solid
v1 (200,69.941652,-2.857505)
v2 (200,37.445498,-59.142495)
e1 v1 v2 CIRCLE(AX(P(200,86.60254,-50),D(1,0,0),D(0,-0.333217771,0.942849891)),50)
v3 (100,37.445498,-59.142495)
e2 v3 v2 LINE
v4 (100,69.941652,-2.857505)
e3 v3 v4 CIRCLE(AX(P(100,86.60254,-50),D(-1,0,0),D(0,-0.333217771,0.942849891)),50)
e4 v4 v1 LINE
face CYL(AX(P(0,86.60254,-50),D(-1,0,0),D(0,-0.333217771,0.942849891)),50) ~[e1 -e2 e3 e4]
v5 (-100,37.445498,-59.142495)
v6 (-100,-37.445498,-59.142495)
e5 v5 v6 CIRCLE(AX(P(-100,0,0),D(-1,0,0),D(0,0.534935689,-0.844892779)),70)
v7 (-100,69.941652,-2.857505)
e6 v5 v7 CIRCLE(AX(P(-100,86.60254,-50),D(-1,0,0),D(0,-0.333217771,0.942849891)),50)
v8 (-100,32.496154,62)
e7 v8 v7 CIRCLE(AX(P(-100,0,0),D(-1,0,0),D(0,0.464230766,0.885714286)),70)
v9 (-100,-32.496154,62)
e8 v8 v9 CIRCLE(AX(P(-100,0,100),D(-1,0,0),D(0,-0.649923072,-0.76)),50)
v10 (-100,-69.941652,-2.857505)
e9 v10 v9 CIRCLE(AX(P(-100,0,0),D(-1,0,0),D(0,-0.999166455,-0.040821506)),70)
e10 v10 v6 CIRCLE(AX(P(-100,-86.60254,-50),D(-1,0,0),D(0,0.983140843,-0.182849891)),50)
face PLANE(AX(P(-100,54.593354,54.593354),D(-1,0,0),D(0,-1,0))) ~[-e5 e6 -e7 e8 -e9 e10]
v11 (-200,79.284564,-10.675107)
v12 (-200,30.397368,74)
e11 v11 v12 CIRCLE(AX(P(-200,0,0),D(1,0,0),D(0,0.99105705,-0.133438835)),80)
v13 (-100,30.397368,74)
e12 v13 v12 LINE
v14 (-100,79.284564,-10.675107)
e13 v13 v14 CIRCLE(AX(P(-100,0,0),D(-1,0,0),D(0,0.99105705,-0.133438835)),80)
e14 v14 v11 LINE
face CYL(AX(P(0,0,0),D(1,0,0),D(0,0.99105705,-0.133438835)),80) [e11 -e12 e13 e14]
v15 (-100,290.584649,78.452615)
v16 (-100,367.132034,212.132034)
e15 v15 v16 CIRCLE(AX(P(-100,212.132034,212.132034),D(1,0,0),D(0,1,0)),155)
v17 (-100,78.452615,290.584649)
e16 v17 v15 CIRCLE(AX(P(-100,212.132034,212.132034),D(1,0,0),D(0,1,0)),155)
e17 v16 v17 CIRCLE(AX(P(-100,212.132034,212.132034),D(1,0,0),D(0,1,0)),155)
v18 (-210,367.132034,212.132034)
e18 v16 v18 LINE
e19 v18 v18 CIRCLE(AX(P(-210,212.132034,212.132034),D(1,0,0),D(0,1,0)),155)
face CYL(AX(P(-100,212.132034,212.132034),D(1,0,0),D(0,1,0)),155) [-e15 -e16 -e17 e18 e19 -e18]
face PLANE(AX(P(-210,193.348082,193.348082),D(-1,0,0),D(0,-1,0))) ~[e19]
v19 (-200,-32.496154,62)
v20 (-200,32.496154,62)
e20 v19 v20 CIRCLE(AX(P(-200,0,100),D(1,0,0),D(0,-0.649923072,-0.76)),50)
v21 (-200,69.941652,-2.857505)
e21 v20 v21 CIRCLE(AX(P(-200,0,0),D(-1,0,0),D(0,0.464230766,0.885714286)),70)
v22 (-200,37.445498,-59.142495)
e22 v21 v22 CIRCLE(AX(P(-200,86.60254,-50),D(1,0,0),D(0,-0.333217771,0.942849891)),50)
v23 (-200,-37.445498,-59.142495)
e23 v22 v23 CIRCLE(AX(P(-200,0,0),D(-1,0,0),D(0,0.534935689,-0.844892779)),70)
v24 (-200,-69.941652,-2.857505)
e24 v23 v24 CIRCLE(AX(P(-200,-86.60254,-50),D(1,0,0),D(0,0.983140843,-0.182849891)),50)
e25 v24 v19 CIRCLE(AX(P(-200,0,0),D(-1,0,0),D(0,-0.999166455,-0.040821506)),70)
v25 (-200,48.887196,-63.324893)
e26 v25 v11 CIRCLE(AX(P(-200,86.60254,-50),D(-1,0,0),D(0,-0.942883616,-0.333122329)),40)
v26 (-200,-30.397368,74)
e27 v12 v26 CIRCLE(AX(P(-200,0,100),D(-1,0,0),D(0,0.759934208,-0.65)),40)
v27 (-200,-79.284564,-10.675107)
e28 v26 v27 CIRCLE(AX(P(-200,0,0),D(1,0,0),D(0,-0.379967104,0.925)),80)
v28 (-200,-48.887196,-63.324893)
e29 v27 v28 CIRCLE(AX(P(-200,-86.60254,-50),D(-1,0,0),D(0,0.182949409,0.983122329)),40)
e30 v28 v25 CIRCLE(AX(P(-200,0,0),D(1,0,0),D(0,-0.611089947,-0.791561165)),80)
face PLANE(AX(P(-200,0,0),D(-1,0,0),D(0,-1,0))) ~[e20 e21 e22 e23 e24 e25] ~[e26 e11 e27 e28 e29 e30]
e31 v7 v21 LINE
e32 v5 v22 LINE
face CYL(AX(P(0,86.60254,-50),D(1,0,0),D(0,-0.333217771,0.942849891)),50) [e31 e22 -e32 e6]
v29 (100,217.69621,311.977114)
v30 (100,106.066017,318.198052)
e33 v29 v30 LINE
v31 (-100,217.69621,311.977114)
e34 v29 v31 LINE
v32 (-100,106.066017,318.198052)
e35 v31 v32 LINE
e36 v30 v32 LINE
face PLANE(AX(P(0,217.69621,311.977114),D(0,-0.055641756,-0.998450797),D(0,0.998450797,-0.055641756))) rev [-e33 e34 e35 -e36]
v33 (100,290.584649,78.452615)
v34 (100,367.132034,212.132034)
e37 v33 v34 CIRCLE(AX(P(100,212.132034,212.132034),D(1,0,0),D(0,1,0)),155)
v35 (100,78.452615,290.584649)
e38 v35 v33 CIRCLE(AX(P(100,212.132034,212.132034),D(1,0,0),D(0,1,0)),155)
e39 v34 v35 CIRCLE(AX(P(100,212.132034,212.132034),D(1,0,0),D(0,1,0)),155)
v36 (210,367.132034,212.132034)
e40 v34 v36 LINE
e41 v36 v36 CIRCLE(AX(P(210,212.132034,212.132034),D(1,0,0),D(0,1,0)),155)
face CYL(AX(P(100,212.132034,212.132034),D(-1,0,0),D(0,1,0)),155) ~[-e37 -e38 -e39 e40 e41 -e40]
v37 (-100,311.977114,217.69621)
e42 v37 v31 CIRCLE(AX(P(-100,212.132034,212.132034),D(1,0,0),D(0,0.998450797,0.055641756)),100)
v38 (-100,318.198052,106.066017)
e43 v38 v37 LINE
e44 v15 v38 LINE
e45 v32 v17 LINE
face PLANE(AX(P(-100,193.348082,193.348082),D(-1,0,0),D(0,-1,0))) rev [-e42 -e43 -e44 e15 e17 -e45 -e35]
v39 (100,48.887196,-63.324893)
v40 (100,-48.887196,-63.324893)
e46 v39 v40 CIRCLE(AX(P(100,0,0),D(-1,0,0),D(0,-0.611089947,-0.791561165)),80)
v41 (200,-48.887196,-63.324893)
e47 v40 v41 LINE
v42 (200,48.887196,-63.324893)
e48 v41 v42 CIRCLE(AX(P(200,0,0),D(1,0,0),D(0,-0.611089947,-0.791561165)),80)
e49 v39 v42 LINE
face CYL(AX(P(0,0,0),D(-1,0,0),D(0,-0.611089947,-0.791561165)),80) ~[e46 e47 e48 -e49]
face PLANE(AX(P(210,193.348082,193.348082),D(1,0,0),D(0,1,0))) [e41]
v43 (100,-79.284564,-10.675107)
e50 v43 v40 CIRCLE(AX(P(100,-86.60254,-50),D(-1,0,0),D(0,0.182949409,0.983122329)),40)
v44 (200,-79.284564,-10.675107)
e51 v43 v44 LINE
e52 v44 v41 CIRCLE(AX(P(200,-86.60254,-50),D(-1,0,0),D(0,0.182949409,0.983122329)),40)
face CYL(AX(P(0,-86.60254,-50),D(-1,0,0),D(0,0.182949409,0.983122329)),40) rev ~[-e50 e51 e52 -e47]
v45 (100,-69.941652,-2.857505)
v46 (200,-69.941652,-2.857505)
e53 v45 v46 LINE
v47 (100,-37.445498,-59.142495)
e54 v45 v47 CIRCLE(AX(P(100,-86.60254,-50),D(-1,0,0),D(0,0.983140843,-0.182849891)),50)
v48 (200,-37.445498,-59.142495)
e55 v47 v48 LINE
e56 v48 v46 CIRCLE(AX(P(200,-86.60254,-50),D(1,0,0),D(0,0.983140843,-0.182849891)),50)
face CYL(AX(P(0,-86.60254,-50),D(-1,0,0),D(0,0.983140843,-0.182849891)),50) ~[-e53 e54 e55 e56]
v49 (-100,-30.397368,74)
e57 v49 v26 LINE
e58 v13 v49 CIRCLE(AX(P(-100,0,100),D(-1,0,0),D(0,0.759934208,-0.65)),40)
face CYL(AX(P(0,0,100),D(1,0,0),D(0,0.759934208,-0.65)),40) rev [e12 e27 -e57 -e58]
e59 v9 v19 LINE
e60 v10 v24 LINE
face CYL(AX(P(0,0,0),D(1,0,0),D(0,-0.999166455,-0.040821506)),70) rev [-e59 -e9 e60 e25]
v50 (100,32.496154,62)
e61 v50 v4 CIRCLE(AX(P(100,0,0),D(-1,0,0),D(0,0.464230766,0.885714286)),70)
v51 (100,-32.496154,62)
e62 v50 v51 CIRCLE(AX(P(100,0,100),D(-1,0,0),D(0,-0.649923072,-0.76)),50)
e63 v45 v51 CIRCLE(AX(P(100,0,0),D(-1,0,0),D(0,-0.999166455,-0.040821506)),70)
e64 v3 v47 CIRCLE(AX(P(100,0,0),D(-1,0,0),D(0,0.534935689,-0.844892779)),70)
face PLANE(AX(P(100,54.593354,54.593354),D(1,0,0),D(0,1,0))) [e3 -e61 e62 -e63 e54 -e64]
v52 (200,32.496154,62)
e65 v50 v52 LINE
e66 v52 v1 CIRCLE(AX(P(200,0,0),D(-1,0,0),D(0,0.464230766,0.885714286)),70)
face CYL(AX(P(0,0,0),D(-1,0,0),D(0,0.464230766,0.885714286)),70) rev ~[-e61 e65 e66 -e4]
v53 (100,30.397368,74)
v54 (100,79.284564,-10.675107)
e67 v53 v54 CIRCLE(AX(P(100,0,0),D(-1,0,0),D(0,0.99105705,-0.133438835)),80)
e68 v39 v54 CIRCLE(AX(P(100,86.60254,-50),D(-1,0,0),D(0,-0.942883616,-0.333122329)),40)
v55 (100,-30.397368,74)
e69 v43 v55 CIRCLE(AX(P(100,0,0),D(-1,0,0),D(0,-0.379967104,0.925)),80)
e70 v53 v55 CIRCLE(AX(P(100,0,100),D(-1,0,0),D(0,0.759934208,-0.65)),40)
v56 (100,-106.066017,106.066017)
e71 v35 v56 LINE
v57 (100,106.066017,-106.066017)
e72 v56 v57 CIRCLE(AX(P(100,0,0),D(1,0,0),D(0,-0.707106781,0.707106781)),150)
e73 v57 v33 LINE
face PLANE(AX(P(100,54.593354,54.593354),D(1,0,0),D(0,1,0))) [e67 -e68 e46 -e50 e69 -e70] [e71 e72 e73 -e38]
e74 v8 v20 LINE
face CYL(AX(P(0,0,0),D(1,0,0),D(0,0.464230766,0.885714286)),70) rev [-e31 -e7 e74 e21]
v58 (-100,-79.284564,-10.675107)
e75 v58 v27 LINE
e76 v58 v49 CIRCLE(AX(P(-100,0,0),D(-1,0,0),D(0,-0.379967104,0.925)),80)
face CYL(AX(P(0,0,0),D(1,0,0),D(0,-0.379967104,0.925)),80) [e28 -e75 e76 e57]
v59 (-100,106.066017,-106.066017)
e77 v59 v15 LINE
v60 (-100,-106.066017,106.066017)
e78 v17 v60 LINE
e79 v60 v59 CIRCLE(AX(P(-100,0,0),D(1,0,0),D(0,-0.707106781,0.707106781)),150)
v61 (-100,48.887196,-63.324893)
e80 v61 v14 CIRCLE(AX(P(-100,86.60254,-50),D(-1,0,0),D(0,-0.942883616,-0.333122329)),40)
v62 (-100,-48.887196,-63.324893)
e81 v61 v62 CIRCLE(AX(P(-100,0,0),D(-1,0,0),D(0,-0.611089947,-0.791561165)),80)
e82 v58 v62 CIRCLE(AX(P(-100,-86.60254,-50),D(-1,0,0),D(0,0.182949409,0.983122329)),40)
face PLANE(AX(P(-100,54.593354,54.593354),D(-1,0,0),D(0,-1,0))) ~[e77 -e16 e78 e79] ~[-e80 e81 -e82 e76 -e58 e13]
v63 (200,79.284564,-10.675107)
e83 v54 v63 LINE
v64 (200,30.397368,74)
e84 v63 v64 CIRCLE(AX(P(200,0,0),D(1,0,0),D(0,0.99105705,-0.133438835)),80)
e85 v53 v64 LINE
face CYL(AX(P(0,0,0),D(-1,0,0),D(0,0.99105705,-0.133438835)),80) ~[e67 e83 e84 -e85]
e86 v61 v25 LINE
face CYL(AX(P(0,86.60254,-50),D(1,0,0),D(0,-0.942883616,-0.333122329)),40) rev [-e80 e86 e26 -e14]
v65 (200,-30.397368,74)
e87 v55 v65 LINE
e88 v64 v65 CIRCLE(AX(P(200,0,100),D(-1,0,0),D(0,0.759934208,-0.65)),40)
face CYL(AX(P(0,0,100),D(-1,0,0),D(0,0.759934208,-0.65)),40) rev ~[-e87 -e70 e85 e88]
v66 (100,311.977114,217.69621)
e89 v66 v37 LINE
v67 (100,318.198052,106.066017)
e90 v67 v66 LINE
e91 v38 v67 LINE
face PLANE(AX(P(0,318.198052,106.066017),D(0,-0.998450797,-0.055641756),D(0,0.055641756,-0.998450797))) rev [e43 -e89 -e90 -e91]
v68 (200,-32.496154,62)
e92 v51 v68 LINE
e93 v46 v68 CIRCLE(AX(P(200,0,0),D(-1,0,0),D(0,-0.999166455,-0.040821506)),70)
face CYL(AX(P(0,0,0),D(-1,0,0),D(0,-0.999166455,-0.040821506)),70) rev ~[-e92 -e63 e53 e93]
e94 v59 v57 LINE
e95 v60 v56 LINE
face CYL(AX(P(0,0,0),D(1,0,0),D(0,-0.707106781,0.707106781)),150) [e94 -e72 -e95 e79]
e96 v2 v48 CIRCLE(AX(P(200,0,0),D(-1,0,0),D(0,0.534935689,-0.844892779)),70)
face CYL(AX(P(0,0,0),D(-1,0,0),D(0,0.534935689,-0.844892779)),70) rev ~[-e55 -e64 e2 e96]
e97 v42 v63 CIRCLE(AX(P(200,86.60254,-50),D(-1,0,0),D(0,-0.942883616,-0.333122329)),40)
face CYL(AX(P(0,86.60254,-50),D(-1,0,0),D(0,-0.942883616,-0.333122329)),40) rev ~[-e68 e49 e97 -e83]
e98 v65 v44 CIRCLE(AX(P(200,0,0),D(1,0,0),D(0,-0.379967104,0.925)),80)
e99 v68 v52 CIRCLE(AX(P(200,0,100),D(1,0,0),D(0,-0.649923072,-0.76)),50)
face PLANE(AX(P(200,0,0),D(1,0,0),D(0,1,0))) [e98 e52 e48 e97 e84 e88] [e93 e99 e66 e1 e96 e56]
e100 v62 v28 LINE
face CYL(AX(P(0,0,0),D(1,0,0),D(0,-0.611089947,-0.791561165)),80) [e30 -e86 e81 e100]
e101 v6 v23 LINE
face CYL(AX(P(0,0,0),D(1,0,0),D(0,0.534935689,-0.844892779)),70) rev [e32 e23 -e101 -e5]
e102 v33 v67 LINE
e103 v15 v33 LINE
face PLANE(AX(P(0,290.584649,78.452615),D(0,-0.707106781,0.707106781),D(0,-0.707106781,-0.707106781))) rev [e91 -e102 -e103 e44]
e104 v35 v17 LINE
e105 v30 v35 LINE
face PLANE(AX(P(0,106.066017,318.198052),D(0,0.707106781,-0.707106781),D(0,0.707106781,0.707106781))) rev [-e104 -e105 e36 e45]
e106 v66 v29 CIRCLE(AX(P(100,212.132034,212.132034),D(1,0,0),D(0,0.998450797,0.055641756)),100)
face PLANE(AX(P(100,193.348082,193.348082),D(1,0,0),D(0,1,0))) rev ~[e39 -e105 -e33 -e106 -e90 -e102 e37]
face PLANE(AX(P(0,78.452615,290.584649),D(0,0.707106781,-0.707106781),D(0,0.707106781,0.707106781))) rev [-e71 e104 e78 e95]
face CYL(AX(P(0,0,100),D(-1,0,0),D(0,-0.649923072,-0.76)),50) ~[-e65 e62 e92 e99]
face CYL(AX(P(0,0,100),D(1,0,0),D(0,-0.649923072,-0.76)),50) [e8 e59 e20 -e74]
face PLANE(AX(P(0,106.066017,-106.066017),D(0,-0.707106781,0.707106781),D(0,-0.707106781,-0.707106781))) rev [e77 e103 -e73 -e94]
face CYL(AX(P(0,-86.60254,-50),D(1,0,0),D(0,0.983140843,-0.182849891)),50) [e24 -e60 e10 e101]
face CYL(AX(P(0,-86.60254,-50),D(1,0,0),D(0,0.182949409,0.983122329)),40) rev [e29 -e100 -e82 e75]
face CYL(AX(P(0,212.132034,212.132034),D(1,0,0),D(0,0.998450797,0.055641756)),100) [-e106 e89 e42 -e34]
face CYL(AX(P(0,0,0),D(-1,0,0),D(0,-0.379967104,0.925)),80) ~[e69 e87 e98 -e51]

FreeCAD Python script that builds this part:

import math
import FreeCAD as App
import Part
import Sketcher
Q = App.Units.Quantity

doc = App.newDocument("Part")
body = doc.addObject("PartDesign::Body", "Body")

sketch1 = body.newObject("Sketcher::SketchObject", "Sketch")
sketch1.AttachmentSupport = (doc.getObject("YZ_Plane"), [""])
sketch1.MapMode = "FlatFace"
sketch1.addGeometry(Part.LineSegment(App.Vector(78.452615, 290.584649, 0), App.Vector(-106.066017, 106.066017, 0)), False)
sketch1.addGeometry(Part.ArcOfCircle(Part.Circle(App.Vector(0, 0, 0), App.Vector(0, 0, 1), 150), math.radians(135), math.radians(315)), False)
sketch1.addGeometry(Part.LineSegment(App.Vector(106.066017, -106.066017, 0), App.Vector(290.584649, 78.452615, 0)), False)
sketch1.addGeometry(Part.LineSegment(App.Vector(290.584649, 78.452615, 0), App.Vector(318.198052, 106.066017, 0)), False)
sketch1.addGeometry(Part.LineSegment(App.Vector(318.198052, 106.066017, 0), App.Vector(311.977114, 217.69621, 0)), False)
sketch1.addGeometry(Part.ArcOfCircle(Part.Circle(App.Vector(212.132034, 212.132034, 0), App.Vector(0, 0, 1), 100), math.radians(3.189685), math.radians(86.810315)), False)
sketch1.addGeometry(Part.LineSegment(App.Vector(217.69621, 311.977114, 0), App.Vector(106.066017, 318.198052, 0)), False)
sketch1.addGeometry(Part.LineSegment(App.Vector(106.066017, 318.198052, 0), App.Vector(78.452615, 290.584649, 0)), False)
sketch1.addConstraint(Sketcher.Constraint("Tangent", 0, 2, 1, 1))
sketch1.addConstraint(Sketcher.Constraint("Tangent", 1, 2, 2, 1))
sketch1.addConstraint(Sketcher.Constraint("Coincident", 2, 2, 3, 1))
sketch1.addConstraint(Sketcher.Constraint("Coincident", 3, 2, 4, 1))
sketch1.addConstraint(Sketcher.Constraint("Tangent", 4, 2, 5, 1))
sketch1.addConstraint(Sketcher.Constraint("Tangent", 5, 2, 6, 1))
sketch1.addConstraint(Sketcher.Constraint("Coincident", 6, 2, 7, 1))
sketch1.addConstraint(Sketcher.Constraint("Coincident", 7, 2, 0, 1))
sketch1.addConstraint(Sketcher.Constraint("Coincident", 1, 3, -1, 1))
sketch1.addConstraint(Sketcher.Constraint("Parallel", 0, 2))
sketch1.addConstraint(Sketcher.Constraint("Parallel", 2, 3))
sketch1.addConstraint(Sketcher.Constraint("Parallel", 3, 7))
sketch1.addConstraint(Sketcher.Constraint("Horizontal", 0, 2, 3, 2))
sketch1.addConstraint(Sketcher.Constraint("Vertical", 1, 2, 6, 2))
sketch1.addConstraint(Sketcher.Constraint("Equal", 0, 2))
sketch1.addConstraint(Sketcher.Constraint("Equal", 4, 6))
sketch1.addConstraint(Sketcher.Constraint("Equal", 3, 7))
sketch1.addConstraint(Sketcher.Constraint("Radius", 1, Q("150 mm")))
sketch1.addConstraint(Sketcher.Constraint("Radius", 5, Q("100 mm")))
sketch1.addConstraint(Sketcher.Constraint("DistanceY", 2, 2, 5, 2, Q("233.524499 mm")))
sketch1.addConstraint(Sketcher.Constraint("Distance", 0, Q("260.948752 mm")))
pad1 = body.newObject("PartDesign::Pad", "Pad")
pad1.Profile = sketch1
pad1.Length = 100

sketch2 = body.newObject("Sketcher::SketchObject", "Sketch001")
sketch2.AttachmentSupport = (doc.getObject("YZ_Plane"), [""])
sketch2.MapMode = "FlatFace"
sketch2.AttachmentOffset = App.Placement(App.Vector(0, 0, 100), App.Rotation())
sketch2.addGeometry(Part.Circle(App.Vector(212.132034, 212.132034, 0), App.Vector(0, 0, 1), 155), False)
sketch2.addConstraint(Sketcher.Constraint("Diameter", 0, Q("310 mm")))
sketch2.addConstraint(Sketcher.Constraint("DistanceX", -1, 1, 0, 3, Q("212.132034 mm")))
sketch2.addConstraint(Sketcher.Constraint("DistanceY", -1, 1, 0, 3, Q("212.132034 mm")))
pad2 = body.newObject("PartDesign::Pad", "Pad001")
pad2.Profile = sketch2
pad2.Length = 110

sketch3 = body.newObject("Sketcher::SketchObject", "Sketch002")
sketch3.AttachmentSupport = (doc.getObject("YZ_Plane"), [""])
sketch3.MapMode = "FlatFace"
sketch3.addGeometry(Part.ArcOfCircle(Part.Circle(App.Vector(0, 100, 0), App.Vector(0, 0, 1), 40), math.radians(-139.458398), math.radians(-40.541602)), False)
sketch3.addGeometry(Part.ArcOfCircle(Part.Circle(App.Vector(0, 0, 0), App.Vector(0, 0, 1), 80), math.radians(112.331645), math.radians(187.668355)), False)
sketch3.addGeometry(Part.ArcOfCircle(Part.Circle(App.Vector(-86.60254, -50, 0), App.Vector(0, 0, 1), 40), math.radians(-19.458398), math.radians(79.458398)), False)
sketch3.addGeometry(Part.ArcOfCircle(Part.Circle(App.Vector(0, 0, 0), App.Vector(0, 0, 1), 80), math.radians(-127.668355), math.radians(-52.331645)), False)
sketch3.addGeometry(Part.ArcOfCircle(Part.Circle(App.Vector(86.60254, -50, 0), App.Vector(0, 0, 1), 40), math.radians(100.541602), math.radians(199.458398)), False)
sketch3.addGeometry(Part.ArcOfCircle(Part.Circle(App.Vector(0, 0, 0), App.Vector(0, 0, 1), 80), math.radians(-7.668355), math.radians(67.668355)), False)
sketch3.addGeometry(Part.ArcOfCircle(Part.Circle(App.Vector(-86.60254, -50, 0), App.Vector(0, 0, 1), 50), math.radians(-10.535802), math.radians(70.535802)), False)
sketch3.addGeometry(Part.ArcOfCircle(Part.Circle(App.Vector(0, 0, 0), App.Vector(0, 0, 1), 70), math.radians(117.66045), math.radians(182.33955)), False)
sketch3.addGeometry(Part.ArcOfCircle(Part.Circle(App.Vector(0, 100, 0), App.Vector(0, 0, 1), 50), math.radians(-130.535802), math.radians(-49.464198)), False)
sketch3.addGeometry(Part.ArcOfCircle(Part.Circle(App.Vector(0, 0, 0), App.Vector(0, 0, 1), 70), math.radians(-2.33955), math.radians(62.33955)), False)
sketch3.addGeometry(Part.ArcOfCircle(Part.Circle(App.Vector(86.60254, -50, 0), App.Vector(0, 0, 1), 50), math.radians(109.464198), math.radians(190.535802)), False)
sketch3.addGeometry(Part.ArcOfCircle(Part.Circle(App.Vector(0, 0, 0), App.Vector(0, 0, 1), 70), math.radians(-122.33955), math.radians(-57.66045)), False)
sketch3.addConstraint(Sketcher.Constraint("Coincident", 0, 1, 1, 1))
sketch3.addConstraint(Sketcher.Constraint("Coincident", 1, 2, 2, 2))
sketch3.addConstraint(Sketcher.Constraint("Coincident", 2, 1, 3, 1))
sketch3.addConstraint(Sketcher.Constraint("Coincident", 3, 2, 4, 2))
sketch3.addConstraint(Sketcher.Constraint("Coincident", 4, 1, 5, 1))
sketch3.addConstraint(Sketcher.Constraint("Coincident", 5, 2, 0, 2))
sketch3.addConstraint(Sketcher.Constraint("Coincident", 6, 2, 7, 2))
sketch3.addConstraint(Sketcher.Constraint("Coincident", 7, 1, 8, 1))
sketch3.addConstraint(Sketcher.Constraint("Coincident", 8, 2, 9, 2))
sketch3.addConstraint(Sketcher.Constraint("Coincident", 9, 1, 10, 1))
sketch3.addConstraint(Sketcher.Constraint("Coincident", 10, 2, 11, 2))
sketch3.addConstraint(Sketcher.Constraint("Coincident", 11, 1, 6, 1))
sketch3.addConstraint(Sketcher.Constraint("Coincident", 1, 3, -1, 1))
sketch3.addConstraint(Sketcher.Constraint("Coincident", 3, 3, -1, 1))
sketch3.addConstraint(Sketcher.Constraint("Coincident", 5, 3, -1, 1))
sketch3.addConstraint(Sketcher.Constraint("Coincident", 7, 3, -1, 1))
sketch3.addConstraint(Sketcher.Constraint("Coincident", 9, 3, -1, 1))
sketch3.addConstraint(Sketcher.Constraint("Coincident", 11, 3, -1, 1))
sketch3.addConstraint(Sketcher.Constraint("Coincident", 6, 3, 2, 3))
sketch3.addConstraint(Sketcher.Constraint("Coincident", 8, 3, 0, 3))
sketch3.addConstraint(Sketcher.Constraint("Coincident", 10, 3, 4, 3))
sketch3.addConstraint(Sketcher.Constraint("Equal", 0, 2))
sketch3.addConstraint(Sketcher.Constraint("Equal", 1, 3))
sketch3.addConstraint(Sketcher.Constraint("Equal", 2, 4))
sketch3.addConstraint(Sketcher.Constraint("Equal", 3, 5))
sketch3.addConstraint(Sketcher.Constraint("Equal", 6, 8))
sketch3.addConstraint(Sketcher.Constraint("Equal", 7, 9))
sketch3.addConstraint(Sketcher.Constraint("Equal", 8, 10))
sketch3.addConstraint(Sketcher.Constraint("Equal", 9, 11))
sketch3.addConstraint(Sketcher.Constraint("Symmetric", 2, 3, 4, 3, -2))
sketch3.addConstraint(Sketcher.Constraint("PointOnObject", 0, 3, -2))
sketch3.addConstraint(Sketcher.Constraint("Radius", 0, Q("40 mm")))
sketch3.addConstraint(Sketcher.Constraint("Radius", 1, Q("80 mm")))
sketch3.addConstraint(Sketcher.Constraint("Radius", 6, Q("50 mm")))
sketch3.addConstraint(Sketcher.Constraint("Radius", 7, Q("70 mm")))
sketch3.addConstraint(Sketcher.Constraint("DistanceY", -1, 1, 0, 3, Q("100 mm")))
sketch3.addConstraint(Sketcher.Constraint("DistanceY", 2, 3, -1, 1, Q("50 mm")))
sketch3.addConstraint(Sketcher.Constraint("DistanceX", -1, 1, 10, 2, Q("37.445498 mm")))
pad3 = body.newObject("PartDesign::Pad", "Pad002")
pad3.Profile = sketch3
pad3.Length = 200
body2 = doc.addObject("PartDesign::Body", "Body001")
doc.recompute()

body2.BaseFeature = body
doc.recompute()

mirroring = doc.addObject("Part::Mirroring", "Mirroring")
mirroring.Source = body
mirroring.Base = App.Vector(0, 0, 0)
mirroring.Normal = App.Vector(1, 0, 0)
body3 = doc.addObject("PartDesign::Body", "Body002")
body3.BaseFeature = mirroring
boolean = body2.newObject("PartDesign::Boolean", "Boolean")
boolean.Type = "Fuse"
boolean.addObjects([body3])
doc.recompute()
mirroring.Visibility = False

doc.recompute()
